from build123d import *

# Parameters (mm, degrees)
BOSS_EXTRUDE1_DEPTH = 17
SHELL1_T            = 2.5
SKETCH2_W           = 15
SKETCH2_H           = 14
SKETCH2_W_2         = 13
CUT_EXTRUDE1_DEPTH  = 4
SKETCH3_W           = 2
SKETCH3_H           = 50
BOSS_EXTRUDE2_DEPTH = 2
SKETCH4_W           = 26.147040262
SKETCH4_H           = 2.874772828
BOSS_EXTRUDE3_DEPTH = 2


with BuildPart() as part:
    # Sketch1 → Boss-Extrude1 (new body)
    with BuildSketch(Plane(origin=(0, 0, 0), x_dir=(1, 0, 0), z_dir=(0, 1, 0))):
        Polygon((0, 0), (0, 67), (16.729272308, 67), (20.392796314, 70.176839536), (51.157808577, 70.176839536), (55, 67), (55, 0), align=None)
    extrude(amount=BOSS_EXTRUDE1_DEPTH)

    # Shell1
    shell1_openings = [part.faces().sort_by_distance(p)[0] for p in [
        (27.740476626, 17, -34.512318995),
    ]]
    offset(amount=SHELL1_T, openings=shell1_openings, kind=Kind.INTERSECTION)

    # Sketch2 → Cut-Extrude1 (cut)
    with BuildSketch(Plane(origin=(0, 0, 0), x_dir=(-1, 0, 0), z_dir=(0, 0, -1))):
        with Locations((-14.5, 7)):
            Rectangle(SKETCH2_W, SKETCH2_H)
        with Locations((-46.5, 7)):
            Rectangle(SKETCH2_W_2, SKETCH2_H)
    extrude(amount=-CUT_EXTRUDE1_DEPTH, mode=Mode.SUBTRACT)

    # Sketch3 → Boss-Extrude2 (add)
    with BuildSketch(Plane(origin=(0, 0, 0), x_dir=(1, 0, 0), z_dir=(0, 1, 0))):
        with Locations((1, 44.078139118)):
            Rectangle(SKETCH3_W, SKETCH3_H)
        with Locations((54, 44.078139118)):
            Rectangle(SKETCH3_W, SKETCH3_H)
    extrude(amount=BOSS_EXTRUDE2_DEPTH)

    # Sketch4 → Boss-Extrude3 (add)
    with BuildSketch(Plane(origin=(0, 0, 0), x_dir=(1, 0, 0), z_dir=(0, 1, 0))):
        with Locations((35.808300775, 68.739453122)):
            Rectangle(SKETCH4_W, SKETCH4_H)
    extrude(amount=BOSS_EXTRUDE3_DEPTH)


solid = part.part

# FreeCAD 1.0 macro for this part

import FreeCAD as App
import Part
import Sketcher

V = App.Vector


def faces_at(feature, points):
    """Names of the faces that lie closest to the given points."""
    faces = feature.Shape.Faces
    near = lambda p: min(range(len(faces)), key=lambda i: faces[i].distToShape(Part.Vertex(*p))[0])
    return sorted({f"Face{near(p) + 1}" for p in points})


def add_polygon(sketch, points):
    """Adds a closed chain of lines whose ends are joined by coincident constraints."""
    first, n = sketch.GeometryCount, len(points)
    for a, b in zip(points, points[1:] + points[:1]):
        sketch.addGeometry(Part.LineSegment(App.Vector(*a, 0), App.Vector(*b, 0)), False)
    for i in range(n):
        sketch.addConstraint(Sketcher.Constraint("Coincident", first + i, 2, first + (i + 1) % n, 1))

doc = App.newDocument("Part")
params = doc.addObject("Spreadsheet::Sheet", "Params")
for row, (alias, value) in enumerate([
    ("sketch1_width", "55 mm"),
    ("sketch1_height", "67 mm"),
    ("pad1_length", "17 mm"),
    ("thickness_wall", "2.5 mm"),
    ("sketch2_width", "15 mm"),
    ("sketch2_width2", "13 mm"),
    ("sketch2_height", "14 mm"),
    ("pocket1_length", "4 mm"),
    ("sketch3_width", "2 mm"),
    ("sketch3_height", "50 mm"),
    ("pad2_length", "2 mm"),
    ("pad3_length", "2 mm"),
], start=1):
    params.set(f"A{row}", alias)
    params.set(f"B{row}", "=" + value)
    params.setAlias(f"B{row}", alias)

body = doc.addObject("PartDesign::Body", "Body")

sketch1 = body.newObject("Sketcher::SketchObject", "Sketch")
sketch1.AttachmentSupport = (doc.getObject("XZ_Plane"), [""])
sketch1.MapMode = "FlatFace"
add_polygon(sketch1, [(0, -67), (0, 0), (55, 0), (55, -67), (51.2, -70.2), (20.4, -70.2), (16.7, -67)])
sketch1.addConstraint(Sketcher.Constraint("Vertical", 0))
sketch1.addConstraint(Sketcher.Constraint("Horizontal", 1))
sketch1.addConstraint(Sketcher.Constraint("Vertical", 2))
sketch1.addConstraint(Sketcher.Constraint("Horizontal", 4))
sketch1.addConstraint(Sketcher.Constraint("Horizontal", 6))
sketch1.addConstraint(Sketcher.Constraint("Coincident", 0, 2, -1, 1))
sketch1.addConstraint(Sketcher.Constraint("Horizontal", 2, 2, 5, 2))
sketch1.addConstraint(Sketcher.Constraint("DistanceX", 1, 1, 1, 2, 55.0))
sketch1.addConstraint(Sketcher.Constraint("DistanceY", 0, 1, 0, 2, 67.0))
sketch1.addConstraint(Sketcher.Constraint("DistanceX", 4, 2, 4, 1, 30.765012))
sketch1.addConstraint(Sketcher.Constraint("DistanceX", 6, 2, 6, 1, 16.729272))
sketch1.addConstraint(Sketcher.Constraint("DistanceX", -1, 1, 3, 2, 51.157809))
sketch1.addConstraint(Sketcher.Constraint("DistanceY", 3, 2, -1, 1, 70.17684))
sketch1.setExpression("Constraints[14]", "Params.sketch1_width")
sketch1.setExpression("Constraints[15]", "Params.sketch1_height")
pad1 = body.newObject("PartDesign::Pad", "Pad")
pad1.Profile = sketch1
pad1.setExpression("Length", "Params.pad1_length")
pad1.Reversed = True
doc.recompute()

thickness = body.newObject("PartDesign::Thickness", "Thickness")
thickness.Base = (pad1, faces_at(pad1, [(27.5, 17, -35.088)]))
thickness.setExpression("Value", "Params.thickness_wall")
thickness.Reversed = False
thickness.Join = "Intersection"

sketch2 = body.newObject("Sketcher::SketchObject", "Sketch001")
sketch2.AttachmentSupport = (doc.getObject("XY_Plane"), [""])
sketch2.MapMode = "FlatFace"
add_polygon(sketch2, [(22, 14), (22, 0), (7, 0), (7, 14)])
add_polygon(sketch2, [(53, 14), (53, 0), (40, 0), (40, 14)])
sketch2.addConstraint(Sketcher.Constraint("Vertical", 0))
sketch2.addConstraint(Sketcher.Constraint("Horizontal", 1))
sketch2.addConstraint(Sketcher.Constraint("Vertical", 2))
sketch2.addConstraint(Sketcher.Constraint("Horizontal", 3))
sketch2.addConstraint(Sketcher.Constraint("Vertical", 4))
sketch2.addConstraint(Sketcher.Constraint("Horizontal", 5))
sketch2.addConstraint(Sketcher.Constraint("Vertical", 6))
sketch2.addConstraint(Sketcher.Constraint("Horizontal", 7))
sketch2.addConstraint(Sketcher.Constraint("PointOnObject", 0, 2, -1))
sketch2.addConstraint(Sketcher.Constraint("PointOnObject", 4, 2, -1))
sketch2.addConstraint(Sketcher.Constraint("Horizontal", 3, 2, 6, 2))
sketch2.addConstraint(Sketcher.Constraint("DistanceX", 1, 2, 1, 1, 15.0))
sketch2.addConstraint(Sketcher.Constraint("DistanceX", 5, 2, 5, 1, 13.0))
sketch2.addConstraint(Sketcher.Constraint("DistanceY", 0, 2, 0, 1, 14.0))
sketch2.addConstraint(Sketcher.Constraint("DistanceX", -1, 1, 0, 2, 22.0))
sketch2.addConstraint(Sketcher.Constraint("DistanceX", -1, 1, 4, 2, 53.0))
sketch2.setExpression("Constraints[19]", "Params.sketch2_width")
sketch2.setExpression("Constraints[20]", "Params.sketch2_width2")
sketch2.setExpression("Constraints[21]", "Params.sketch2_height")
pocket1 = body.newObject("PartDesign::Pocket", "Pocket")
pocket1.Profile = sketch2
pocket1.setExpression("Length", "Params.pocket1_length")
pocket1.Reversed = True

sketch3 = body.newObject("Sketcher::SketchObject", "Sketch002")
sketch3.AttachmentSupport = (doc.getObject("XZ_Plane"), [""])
sketch3.MapMode = "FlatFace"
add_polygon(sketch3, [(0, -69.1), (0, -19.1), (2, -19.1), (2, -69.1)])
add_polygon(sketch3, [(53, -69.1), (53, -19.1), (55, -19.1), (55, -69.1)])
sketch3.addConstraint(Sketcher.Constraint("Vertical", 0))
sketch3.addConstraint(Sketcher.Constraint("Horizontal", 1))
sketch3.addConstraint(Sketcher.Constraint("Vertical", 2))
sketch3.addConstraint(Sketcher.Constraint("Horizontal", 3))
sketch3.addConstraint(Sketcher.Constraint("Vertical", 4))
sketch3.addConstraint(Sketcher.Constraint("Horizontal", 5))
sketch3.addConstraint(Sketcher.Constraint("Vertical", 6))
sketch3.addConstraint(Sketcher.Constraint("Horizontal", 7))
sketch3.addConstraint(Sketcher.Constraint("PointOnObject", 0, 2, -2))
sketch3.addConstraint(Sketcher.Constraint("Horizontal", 1, 2, 4, 2))
sketch3.addConstraint(Sketcher.Constraint("Horizontal", 3, 2, 6, 2))
sketch3.addConstraint(Sketcher.Constraint("Equal", 3, 5))
sketch3.addConstraint(Sketcher.Constraint("DistanceX", 1, 1, 1, 2, 2.0))
sketch3.addConstraint(Sketcher.Constraint("DistanceY", 0, 1, 0, 2, 50.0))
sketch3.addConstraint(Sketcher.Constraint("DistanceX", -1, 1, 4, 2, 53.0))
sketch3.addConstraint(Sketcher.Constraint("DistanceY", 0, 2, -1, 1, 19.078139))
sketch3.setExpression("Constraints[20]", "Params.sketch3_width")
sketch3.setExpression("Constraints[21]", "Params.sketch3_height")
pad2 = body.newObject("PartDesign::Pad", "Pad001")
pad2.Profile = sketch3
pad2.setExpression("Length", "Params.pad2_length")
pad2.Reversed = True

sketch4 = body.newObject("Sketcher::SketchObject", "Sketch003")
sketch4.AttachmentSupport = (doc.getObject("XZ_Plane"), [""])
sketch4.MapMode = "FlatFace"
add_polygon(sketch4, [(22.7, -70.2), (22.7, -67.3), (48.9, -67.3), (48.9, -70.2)])
sketch4.addConstraint(Sketcher.Constraint("Vertical", 0))
sketch4.addConstraint(Sketcher.Constraint("Horizontal", 1))
sketch4.addConstraint(Sketcher.Constraint("Vertical", 2))
sketch4.addConstraint(Sketcher.Constraint("Horizontal", 3))
sketch4.addConstraint(Sketcher.Constraint("DistanceX", 1, 1, 1, 2, 26.14704))
sketch4.addConstraint(Sketcher.Constraint("DistanceY", 0, 1, 0, 2, 2.874773))
sketch4.addConstraint(Sketcher.Constraint("DistanceX", -1, 1, 0, 2, 22.734781))
sketch4.addConstraint(Sketcher.Constraint("DistanceY", 2, 2, -1, 1, 70.17684))
pad3 = body.newObject("PartDesign::Pad", "Pad002")
pad3.Profile = sketch4
pad3.setExpression("Length", "Params.pad3_length")
pad3.Reversed = True

doc.recompute()
